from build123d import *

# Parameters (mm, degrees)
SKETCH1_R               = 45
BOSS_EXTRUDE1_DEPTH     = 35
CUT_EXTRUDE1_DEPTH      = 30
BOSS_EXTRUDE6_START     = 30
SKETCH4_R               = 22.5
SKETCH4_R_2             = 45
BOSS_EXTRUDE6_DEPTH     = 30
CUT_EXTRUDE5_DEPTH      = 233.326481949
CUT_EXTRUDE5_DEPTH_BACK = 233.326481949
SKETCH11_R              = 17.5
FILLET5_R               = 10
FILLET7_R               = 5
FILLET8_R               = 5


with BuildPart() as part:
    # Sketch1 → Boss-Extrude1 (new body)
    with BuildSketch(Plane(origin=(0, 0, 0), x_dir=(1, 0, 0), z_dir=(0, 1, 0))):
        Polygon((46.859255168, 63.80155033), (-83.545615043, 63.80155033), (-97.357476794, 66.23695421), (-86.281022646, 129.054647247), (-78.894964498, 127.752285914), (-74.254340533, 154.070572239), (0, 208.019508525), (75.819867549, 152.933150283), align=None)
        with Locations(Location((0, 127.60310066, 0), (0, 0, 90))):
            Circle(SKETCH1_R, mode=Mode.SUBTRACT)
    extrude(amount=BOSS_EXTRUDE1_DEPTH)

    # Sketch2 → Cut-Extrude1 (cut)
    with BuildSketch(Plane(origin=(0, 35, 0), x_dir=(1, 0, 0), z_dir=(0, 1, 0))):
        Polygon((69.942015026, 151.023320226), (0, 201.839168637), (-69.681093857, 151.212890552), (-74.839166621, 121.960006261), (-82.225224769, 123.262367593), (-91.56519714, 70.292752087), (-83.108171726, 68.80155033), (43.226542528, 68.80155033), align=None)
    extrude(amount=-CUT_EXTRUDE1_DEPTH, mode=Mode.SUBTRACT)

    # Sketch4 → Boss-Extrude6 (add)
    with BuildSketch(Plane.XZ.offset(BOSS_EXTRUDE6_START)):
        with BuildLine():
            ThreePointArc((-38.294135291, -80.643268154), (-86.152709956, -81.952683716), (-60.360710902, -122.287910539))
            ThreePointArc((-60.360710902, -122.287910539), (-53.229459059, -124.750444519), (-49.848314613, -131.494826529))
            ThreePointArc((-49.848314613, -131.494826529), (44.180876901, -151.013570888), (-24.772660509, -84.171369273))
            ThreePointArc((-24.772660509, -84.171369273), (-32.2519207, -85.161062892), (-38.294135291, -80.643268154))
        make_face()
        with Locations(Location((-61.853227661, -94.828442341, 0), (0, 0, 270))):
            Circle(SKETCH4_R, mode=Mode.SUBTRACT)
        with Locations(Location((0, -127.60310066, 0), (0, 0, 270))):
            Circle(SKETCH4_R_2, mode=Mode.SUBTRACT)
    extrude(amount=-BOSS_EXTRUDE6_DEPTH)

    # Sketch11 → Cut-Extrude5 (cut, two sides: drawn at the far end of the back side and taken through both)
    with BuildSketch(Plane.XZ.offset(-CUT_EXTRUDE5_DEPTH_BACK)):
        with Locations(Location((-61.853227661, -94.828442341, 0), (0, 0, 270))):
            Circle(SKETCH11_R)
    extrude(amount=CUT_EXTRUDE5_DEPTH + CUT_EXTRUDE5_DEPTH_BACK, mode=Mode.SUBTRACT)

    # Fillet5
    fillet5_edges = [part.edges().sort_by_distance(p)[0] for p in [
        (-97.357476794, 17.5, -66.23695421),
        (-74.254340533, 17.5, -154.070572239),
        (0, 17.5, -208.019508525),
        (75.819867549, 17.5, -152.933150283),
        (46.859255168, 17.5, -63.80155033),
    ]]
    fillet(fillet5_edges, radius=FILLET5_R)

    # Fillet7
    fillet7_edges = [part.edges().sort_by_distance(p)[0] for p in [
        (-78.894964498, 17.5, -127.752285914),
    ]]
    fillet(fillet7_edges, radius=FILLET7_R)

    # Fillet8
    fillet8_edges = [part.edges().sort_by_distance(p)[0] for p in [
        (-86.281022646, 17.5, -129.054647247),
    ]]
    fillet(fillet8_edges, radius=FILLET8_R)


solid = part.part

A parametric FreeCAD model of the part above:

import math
import FreeCAD as App
import Part
import Sketcher
from FreeCAD import Vector
Q = App.Units.Quantity


def edges_at(feature, points):
    """Names of the edges that pass closest to the given points."""
    edges = feature.Shape.Edges
    near = lambda p: min(range(len(edges)), key=lambda i: edges[i].distToShape(Part.Vertex(*p))[0])
    return sorted({f"Edge{near(p) + 1}" for p in points})


def add_polygon(sketch, points):
    """Adds a closed chain of lines whose ends are joined by coincident constraints."""
    first, n = sketch.GeometryCount, len(points)
    for a, b in zip(points, points[1:] + points[:1]):
        sketch.addGeometry(Part.LineSegment(App.Vector(*a, 0), App.Vector(*b, 0)), False)
    for i in range(n):
        sketch.addConstraint(Sketcher.Constraint("Coincident", first + i, 2, first + (i + 1) % n, 1))

doc = App.newDocument("Part")
body = doc.addObject("PartDesign::Body", "Body")

sketch1 = body.newObject("Sketcher::SketchObject", "Sketch")
sketch1.AttachmentSupport = (doc.getObject("XZ_Plane"), [""])
sketch1.MapMode = "FlatFace"
add_polygon(sketch1, [(-84, -64), (47, -64), (76, -153), (0, -208), (-74, -154), (-79, -128), (-86, -129), (-97, -66)])
sketch1.addGeometry(Part.Circle(Vector(0, -128, 0), Vector(0, 0, 1), 45), False)
sketch1.addConstraint([
    Sketcher.Constraint("Horizontal", 0),
    Sketcher.Constraint("PointOnObject", 8, 3, -2),
    Sketcher.Constraint("PointOnObject", 2, 2, -2),
    Sketcher.Constraint("Perpendicular", 4, 5),
    Sketcher.Constraint("Perpendicular", 5, 6),
    Sketcher.Constraint("Perpendicular", 6, 7),
    Sketcher.Constraint("Equal", 1, 2),
    Sketcher.Constraint("Diameter", 8, Q("90 mm")),
    Sketcher.Constraint("Angle", 1, Q("-72 deg")),
    Sketcher.Constraint("Angle", 2, Q("-144 deg")),
    Sketcher.Constraint("Angle", 3, Q("144 deg")),
    Sketcher.Constraint("Angle", 4, Q("100 deg")),
    Sketcher.Constraint("Distance", 5, Q("7.5 mm")),
    Sketcher.Constraint("DistanceX", 0, 1, 0, 2, Q("130.40487 mm")),
    Sketcher.Constraint("DistanceY", 8, 3, -1, 1, Q("127.603101 mm")),
    Sketcher.Constraint("DistanceY", 1, 2, 0, 2, Q("89.1316 mm")),
    Sketcher.Constraint("Distance", 4, Q("26.724288 mm")),
    Sketcher.Constraint("Distance", 7, Q("14.024932 mm")),
    Sketcher.Constraint("DistanceY", 0, 2, -1, 1, Q("63.80155 mm")),
])
pad1 = body.newObject("PartDesign::Pad", "Pad")
pad1.Profile = sketch1
pad1.Length = 35
pad1.Reversed = True

sketch2 = body.newObject("Sketcher::SketchObject", "Sketch001")
sketch2.AttachmentSupport = (doc.getObject("XZ_Plane"), [""])
sketch2.MapMode = "FlatFace"
sketch2.AttachmentOffset = App.Placement(Vector(0, 0, -35), App.Rotation())
add_polygon(sketch2, [(70, -151), (0, -202), (-70, -151), (-75, -122), (-82, -123), (-92, -70), (-83, -69), (43, -69)])
sketch2.addConstraint([
    Sketcher.Constraint("Horizontal", 6),
    Sketcher.Constraint("PointOnObject", 0, 2, -2),
    Sketcher.Constraint("Perpendicular", 2, 3),
    Sketcher.Constraint("Perpendicular", 3, 4),
    Sketcher.Constraint("Perpendicular", 4, 5),
    Sketcher.Constraint("Equal", 0, 7),
    Sketcher.Constraint("Angle", 0, Q("-144 deg")),
    Sketcher.Constraint("Angle", 1, Q("144 deg")),
    Sketcher.Constraint("Angle", 2, Q("100 deg")),
    Sketcher.Constraint("Angle", 7, Q("-72 deg")),
    Sketcher.Constraint("Distance", 3, Q("7.5 mm")),
    Sketcher.Constraint("DistanceY", 0, 2, 3, 2, Q("78.576801 mm")),
    Sketcher.Constraint("DistanceY", 4, 2, 5, 2, Q("1.491202 mm")),
    Sketcher.Constraint("Distance", 1, Q("86.130569 mm")),
    Sketcher.Constraint("DistanceX", 6, 1, 6, 2, Q("126.334714 mm")),
    Sketcher.Constraint("DistanceY", 0, 2, -1, 1, Q("201.839169 mm")),
])
pocket1 = body.newObject("PartDesign::Pocket", "Pocket")
pocket1.Profile = sketch2
pocket1.Length = 30
pocket1.Reversed = True

sketch3 = body.newObject("Sketcher::SketchObject", "Sketch002")
sketch3.AttachmentSupport = (doc.getObject("XZ_Plane"), [""])
sketch3.MapMode = "FlatFace"
sketch3.AttachmentOffset = App.Placement(Vector(0, 0, 30), App.Rotation())
sketch3.addGeometry([
    Part.ArcOfCircle(Part.Circle(Vector(-62, -95, 0), Vector(0, 0, 1), 28), math.radians(31), math.radians(273)),
    Part.ArcOfCircle(Part.Circle(Vector(-60, -132, 0), Vector(0, 0, 1), 10), math.radians(4), math.radians(93)),
    Part.ArcOfCircle(Part.Circle(Vector(0, -128, 0), Vector(0, 0, 1), 50), math.radians(-176), math.radians(120)),
    Part.ArcOfCircle(Part.Circle(Vector(-30, -75, 0), Vector(0, 0, 1), 10), math.radians(-149), math.radians(-60)),
    Part.Circle(Vector(0, -128, 0), Vector(0, 0, 1), 45),
    Part.Circle(Vector(-62, -95, 0), Vector(0, 0, 1), 22),
], False)
sketch3.addConstraint([
    Sketcher.Constraint("Tangent", 0, 2, 1, 2),
    Sketcher.Constraint("Tangent", 1, 1, 2, 1),
    Sketcher.Constraint("Tangent", 2, 2, 3, 2),
    Sketcher.Constraint("Tangent", 3, 1, 0, 1),
    Sketcher.Constraint("Coincident", 4, 3, 2, 3),
    Sketcher.Constraint("Coincident", 5, 3, 0, 3),
    Sketcher.Constraint("Equal", 1, 3),
    Sketcher.Constraint("PointOnObject", 2, 3, -2),
    Sketcher.Constraint("Diameter", 4, Q("90 mm")),
    Sketcher.Constraint("Diameter", 5, Q("45 mm")),
    Sketcher.Constraint("Radius", 1, Q("10 mm")),
    Sketcher.Constraint("Radius", 2, Q("50 mm")),
    Sketcher.Constraint("Radius", 0, Q("27.5 mm")),
    Sketcher.Constraint("DistanceY", 2, 3, -1, 1, Q("127.603101 mm")),
    Sketcher.Constraint("DistanceY", 2, 2, 3, 1, Q("3.528101 mm")),
    Sketcher.Constraint("DistanceY", 1, 3, -1, 1, Q("132.273172 mm")),
])
pad2 = body.newObject("PartDesign::Pad", "Pad001")
pad2.Profile = sketch3
pad2.Length = 30
pad2.Reversed = True

sketch4 = body.newObject("Sketcher::SketchObject", "Sketch003")
sketch4.AttachmentSupport = (doc.getObject("XZ_Plane"), [""])
sketch4.MapMode = "FlatFace"
sketch4.addGeometry(Part.Circle(Vector(-62, -95, 0), Vector(0, 0, 1), 18), False)
sketch4.addConstraint([
    Sketcher.Constraint("Diameter", 0, Q("35 mm")),
    Sketcher.Constraint("DistanceX", 0, 3, -1, 1, Q("61.853228 mm")),
    Sketcher.Constraint("DistanceY", 0, 3, -1, 1, Q("94.828442 mm")),
])
pocket2 = body.newObject("PartDesign::Pocket", "Pocket001")
pocket2.Profile = sketch4
pocket2.Type = "ThroughAll"
pocket2.Midplane = True
doc.recompute()

fillet = body.newObject("PartDesign::Fillet", "Fillet")
fillet.Base = (pocket2, edges_at(pocket2, [
    (-97.357, 17.5, -66.237),
    (-74.254, 17.5, -154.071),
    (0, 17.5, -208.02),
    (75.82, 17.5, -152.933),
    (46.859, 17.5, -63.802),
]))
fillet.Radius = 10
doc.recompute()

fillet2 = body.newObject("PartDesign::Fillet", "Fillet001")
fillet2.Base = (fillet, edges_at(fillet, [(-78.895, 17.5, -127.752)]))
fillet2.Radius = 5
doc.recompute()

fillet3 = body.newObject("PartDesign::Fillet", "Fillet002")
fillet3.Base = (fillet2, edges_at(fillet2, [(-86.281, 17.5, -129.055)]))
fillet3.Radius = 5

doc.recompute()
